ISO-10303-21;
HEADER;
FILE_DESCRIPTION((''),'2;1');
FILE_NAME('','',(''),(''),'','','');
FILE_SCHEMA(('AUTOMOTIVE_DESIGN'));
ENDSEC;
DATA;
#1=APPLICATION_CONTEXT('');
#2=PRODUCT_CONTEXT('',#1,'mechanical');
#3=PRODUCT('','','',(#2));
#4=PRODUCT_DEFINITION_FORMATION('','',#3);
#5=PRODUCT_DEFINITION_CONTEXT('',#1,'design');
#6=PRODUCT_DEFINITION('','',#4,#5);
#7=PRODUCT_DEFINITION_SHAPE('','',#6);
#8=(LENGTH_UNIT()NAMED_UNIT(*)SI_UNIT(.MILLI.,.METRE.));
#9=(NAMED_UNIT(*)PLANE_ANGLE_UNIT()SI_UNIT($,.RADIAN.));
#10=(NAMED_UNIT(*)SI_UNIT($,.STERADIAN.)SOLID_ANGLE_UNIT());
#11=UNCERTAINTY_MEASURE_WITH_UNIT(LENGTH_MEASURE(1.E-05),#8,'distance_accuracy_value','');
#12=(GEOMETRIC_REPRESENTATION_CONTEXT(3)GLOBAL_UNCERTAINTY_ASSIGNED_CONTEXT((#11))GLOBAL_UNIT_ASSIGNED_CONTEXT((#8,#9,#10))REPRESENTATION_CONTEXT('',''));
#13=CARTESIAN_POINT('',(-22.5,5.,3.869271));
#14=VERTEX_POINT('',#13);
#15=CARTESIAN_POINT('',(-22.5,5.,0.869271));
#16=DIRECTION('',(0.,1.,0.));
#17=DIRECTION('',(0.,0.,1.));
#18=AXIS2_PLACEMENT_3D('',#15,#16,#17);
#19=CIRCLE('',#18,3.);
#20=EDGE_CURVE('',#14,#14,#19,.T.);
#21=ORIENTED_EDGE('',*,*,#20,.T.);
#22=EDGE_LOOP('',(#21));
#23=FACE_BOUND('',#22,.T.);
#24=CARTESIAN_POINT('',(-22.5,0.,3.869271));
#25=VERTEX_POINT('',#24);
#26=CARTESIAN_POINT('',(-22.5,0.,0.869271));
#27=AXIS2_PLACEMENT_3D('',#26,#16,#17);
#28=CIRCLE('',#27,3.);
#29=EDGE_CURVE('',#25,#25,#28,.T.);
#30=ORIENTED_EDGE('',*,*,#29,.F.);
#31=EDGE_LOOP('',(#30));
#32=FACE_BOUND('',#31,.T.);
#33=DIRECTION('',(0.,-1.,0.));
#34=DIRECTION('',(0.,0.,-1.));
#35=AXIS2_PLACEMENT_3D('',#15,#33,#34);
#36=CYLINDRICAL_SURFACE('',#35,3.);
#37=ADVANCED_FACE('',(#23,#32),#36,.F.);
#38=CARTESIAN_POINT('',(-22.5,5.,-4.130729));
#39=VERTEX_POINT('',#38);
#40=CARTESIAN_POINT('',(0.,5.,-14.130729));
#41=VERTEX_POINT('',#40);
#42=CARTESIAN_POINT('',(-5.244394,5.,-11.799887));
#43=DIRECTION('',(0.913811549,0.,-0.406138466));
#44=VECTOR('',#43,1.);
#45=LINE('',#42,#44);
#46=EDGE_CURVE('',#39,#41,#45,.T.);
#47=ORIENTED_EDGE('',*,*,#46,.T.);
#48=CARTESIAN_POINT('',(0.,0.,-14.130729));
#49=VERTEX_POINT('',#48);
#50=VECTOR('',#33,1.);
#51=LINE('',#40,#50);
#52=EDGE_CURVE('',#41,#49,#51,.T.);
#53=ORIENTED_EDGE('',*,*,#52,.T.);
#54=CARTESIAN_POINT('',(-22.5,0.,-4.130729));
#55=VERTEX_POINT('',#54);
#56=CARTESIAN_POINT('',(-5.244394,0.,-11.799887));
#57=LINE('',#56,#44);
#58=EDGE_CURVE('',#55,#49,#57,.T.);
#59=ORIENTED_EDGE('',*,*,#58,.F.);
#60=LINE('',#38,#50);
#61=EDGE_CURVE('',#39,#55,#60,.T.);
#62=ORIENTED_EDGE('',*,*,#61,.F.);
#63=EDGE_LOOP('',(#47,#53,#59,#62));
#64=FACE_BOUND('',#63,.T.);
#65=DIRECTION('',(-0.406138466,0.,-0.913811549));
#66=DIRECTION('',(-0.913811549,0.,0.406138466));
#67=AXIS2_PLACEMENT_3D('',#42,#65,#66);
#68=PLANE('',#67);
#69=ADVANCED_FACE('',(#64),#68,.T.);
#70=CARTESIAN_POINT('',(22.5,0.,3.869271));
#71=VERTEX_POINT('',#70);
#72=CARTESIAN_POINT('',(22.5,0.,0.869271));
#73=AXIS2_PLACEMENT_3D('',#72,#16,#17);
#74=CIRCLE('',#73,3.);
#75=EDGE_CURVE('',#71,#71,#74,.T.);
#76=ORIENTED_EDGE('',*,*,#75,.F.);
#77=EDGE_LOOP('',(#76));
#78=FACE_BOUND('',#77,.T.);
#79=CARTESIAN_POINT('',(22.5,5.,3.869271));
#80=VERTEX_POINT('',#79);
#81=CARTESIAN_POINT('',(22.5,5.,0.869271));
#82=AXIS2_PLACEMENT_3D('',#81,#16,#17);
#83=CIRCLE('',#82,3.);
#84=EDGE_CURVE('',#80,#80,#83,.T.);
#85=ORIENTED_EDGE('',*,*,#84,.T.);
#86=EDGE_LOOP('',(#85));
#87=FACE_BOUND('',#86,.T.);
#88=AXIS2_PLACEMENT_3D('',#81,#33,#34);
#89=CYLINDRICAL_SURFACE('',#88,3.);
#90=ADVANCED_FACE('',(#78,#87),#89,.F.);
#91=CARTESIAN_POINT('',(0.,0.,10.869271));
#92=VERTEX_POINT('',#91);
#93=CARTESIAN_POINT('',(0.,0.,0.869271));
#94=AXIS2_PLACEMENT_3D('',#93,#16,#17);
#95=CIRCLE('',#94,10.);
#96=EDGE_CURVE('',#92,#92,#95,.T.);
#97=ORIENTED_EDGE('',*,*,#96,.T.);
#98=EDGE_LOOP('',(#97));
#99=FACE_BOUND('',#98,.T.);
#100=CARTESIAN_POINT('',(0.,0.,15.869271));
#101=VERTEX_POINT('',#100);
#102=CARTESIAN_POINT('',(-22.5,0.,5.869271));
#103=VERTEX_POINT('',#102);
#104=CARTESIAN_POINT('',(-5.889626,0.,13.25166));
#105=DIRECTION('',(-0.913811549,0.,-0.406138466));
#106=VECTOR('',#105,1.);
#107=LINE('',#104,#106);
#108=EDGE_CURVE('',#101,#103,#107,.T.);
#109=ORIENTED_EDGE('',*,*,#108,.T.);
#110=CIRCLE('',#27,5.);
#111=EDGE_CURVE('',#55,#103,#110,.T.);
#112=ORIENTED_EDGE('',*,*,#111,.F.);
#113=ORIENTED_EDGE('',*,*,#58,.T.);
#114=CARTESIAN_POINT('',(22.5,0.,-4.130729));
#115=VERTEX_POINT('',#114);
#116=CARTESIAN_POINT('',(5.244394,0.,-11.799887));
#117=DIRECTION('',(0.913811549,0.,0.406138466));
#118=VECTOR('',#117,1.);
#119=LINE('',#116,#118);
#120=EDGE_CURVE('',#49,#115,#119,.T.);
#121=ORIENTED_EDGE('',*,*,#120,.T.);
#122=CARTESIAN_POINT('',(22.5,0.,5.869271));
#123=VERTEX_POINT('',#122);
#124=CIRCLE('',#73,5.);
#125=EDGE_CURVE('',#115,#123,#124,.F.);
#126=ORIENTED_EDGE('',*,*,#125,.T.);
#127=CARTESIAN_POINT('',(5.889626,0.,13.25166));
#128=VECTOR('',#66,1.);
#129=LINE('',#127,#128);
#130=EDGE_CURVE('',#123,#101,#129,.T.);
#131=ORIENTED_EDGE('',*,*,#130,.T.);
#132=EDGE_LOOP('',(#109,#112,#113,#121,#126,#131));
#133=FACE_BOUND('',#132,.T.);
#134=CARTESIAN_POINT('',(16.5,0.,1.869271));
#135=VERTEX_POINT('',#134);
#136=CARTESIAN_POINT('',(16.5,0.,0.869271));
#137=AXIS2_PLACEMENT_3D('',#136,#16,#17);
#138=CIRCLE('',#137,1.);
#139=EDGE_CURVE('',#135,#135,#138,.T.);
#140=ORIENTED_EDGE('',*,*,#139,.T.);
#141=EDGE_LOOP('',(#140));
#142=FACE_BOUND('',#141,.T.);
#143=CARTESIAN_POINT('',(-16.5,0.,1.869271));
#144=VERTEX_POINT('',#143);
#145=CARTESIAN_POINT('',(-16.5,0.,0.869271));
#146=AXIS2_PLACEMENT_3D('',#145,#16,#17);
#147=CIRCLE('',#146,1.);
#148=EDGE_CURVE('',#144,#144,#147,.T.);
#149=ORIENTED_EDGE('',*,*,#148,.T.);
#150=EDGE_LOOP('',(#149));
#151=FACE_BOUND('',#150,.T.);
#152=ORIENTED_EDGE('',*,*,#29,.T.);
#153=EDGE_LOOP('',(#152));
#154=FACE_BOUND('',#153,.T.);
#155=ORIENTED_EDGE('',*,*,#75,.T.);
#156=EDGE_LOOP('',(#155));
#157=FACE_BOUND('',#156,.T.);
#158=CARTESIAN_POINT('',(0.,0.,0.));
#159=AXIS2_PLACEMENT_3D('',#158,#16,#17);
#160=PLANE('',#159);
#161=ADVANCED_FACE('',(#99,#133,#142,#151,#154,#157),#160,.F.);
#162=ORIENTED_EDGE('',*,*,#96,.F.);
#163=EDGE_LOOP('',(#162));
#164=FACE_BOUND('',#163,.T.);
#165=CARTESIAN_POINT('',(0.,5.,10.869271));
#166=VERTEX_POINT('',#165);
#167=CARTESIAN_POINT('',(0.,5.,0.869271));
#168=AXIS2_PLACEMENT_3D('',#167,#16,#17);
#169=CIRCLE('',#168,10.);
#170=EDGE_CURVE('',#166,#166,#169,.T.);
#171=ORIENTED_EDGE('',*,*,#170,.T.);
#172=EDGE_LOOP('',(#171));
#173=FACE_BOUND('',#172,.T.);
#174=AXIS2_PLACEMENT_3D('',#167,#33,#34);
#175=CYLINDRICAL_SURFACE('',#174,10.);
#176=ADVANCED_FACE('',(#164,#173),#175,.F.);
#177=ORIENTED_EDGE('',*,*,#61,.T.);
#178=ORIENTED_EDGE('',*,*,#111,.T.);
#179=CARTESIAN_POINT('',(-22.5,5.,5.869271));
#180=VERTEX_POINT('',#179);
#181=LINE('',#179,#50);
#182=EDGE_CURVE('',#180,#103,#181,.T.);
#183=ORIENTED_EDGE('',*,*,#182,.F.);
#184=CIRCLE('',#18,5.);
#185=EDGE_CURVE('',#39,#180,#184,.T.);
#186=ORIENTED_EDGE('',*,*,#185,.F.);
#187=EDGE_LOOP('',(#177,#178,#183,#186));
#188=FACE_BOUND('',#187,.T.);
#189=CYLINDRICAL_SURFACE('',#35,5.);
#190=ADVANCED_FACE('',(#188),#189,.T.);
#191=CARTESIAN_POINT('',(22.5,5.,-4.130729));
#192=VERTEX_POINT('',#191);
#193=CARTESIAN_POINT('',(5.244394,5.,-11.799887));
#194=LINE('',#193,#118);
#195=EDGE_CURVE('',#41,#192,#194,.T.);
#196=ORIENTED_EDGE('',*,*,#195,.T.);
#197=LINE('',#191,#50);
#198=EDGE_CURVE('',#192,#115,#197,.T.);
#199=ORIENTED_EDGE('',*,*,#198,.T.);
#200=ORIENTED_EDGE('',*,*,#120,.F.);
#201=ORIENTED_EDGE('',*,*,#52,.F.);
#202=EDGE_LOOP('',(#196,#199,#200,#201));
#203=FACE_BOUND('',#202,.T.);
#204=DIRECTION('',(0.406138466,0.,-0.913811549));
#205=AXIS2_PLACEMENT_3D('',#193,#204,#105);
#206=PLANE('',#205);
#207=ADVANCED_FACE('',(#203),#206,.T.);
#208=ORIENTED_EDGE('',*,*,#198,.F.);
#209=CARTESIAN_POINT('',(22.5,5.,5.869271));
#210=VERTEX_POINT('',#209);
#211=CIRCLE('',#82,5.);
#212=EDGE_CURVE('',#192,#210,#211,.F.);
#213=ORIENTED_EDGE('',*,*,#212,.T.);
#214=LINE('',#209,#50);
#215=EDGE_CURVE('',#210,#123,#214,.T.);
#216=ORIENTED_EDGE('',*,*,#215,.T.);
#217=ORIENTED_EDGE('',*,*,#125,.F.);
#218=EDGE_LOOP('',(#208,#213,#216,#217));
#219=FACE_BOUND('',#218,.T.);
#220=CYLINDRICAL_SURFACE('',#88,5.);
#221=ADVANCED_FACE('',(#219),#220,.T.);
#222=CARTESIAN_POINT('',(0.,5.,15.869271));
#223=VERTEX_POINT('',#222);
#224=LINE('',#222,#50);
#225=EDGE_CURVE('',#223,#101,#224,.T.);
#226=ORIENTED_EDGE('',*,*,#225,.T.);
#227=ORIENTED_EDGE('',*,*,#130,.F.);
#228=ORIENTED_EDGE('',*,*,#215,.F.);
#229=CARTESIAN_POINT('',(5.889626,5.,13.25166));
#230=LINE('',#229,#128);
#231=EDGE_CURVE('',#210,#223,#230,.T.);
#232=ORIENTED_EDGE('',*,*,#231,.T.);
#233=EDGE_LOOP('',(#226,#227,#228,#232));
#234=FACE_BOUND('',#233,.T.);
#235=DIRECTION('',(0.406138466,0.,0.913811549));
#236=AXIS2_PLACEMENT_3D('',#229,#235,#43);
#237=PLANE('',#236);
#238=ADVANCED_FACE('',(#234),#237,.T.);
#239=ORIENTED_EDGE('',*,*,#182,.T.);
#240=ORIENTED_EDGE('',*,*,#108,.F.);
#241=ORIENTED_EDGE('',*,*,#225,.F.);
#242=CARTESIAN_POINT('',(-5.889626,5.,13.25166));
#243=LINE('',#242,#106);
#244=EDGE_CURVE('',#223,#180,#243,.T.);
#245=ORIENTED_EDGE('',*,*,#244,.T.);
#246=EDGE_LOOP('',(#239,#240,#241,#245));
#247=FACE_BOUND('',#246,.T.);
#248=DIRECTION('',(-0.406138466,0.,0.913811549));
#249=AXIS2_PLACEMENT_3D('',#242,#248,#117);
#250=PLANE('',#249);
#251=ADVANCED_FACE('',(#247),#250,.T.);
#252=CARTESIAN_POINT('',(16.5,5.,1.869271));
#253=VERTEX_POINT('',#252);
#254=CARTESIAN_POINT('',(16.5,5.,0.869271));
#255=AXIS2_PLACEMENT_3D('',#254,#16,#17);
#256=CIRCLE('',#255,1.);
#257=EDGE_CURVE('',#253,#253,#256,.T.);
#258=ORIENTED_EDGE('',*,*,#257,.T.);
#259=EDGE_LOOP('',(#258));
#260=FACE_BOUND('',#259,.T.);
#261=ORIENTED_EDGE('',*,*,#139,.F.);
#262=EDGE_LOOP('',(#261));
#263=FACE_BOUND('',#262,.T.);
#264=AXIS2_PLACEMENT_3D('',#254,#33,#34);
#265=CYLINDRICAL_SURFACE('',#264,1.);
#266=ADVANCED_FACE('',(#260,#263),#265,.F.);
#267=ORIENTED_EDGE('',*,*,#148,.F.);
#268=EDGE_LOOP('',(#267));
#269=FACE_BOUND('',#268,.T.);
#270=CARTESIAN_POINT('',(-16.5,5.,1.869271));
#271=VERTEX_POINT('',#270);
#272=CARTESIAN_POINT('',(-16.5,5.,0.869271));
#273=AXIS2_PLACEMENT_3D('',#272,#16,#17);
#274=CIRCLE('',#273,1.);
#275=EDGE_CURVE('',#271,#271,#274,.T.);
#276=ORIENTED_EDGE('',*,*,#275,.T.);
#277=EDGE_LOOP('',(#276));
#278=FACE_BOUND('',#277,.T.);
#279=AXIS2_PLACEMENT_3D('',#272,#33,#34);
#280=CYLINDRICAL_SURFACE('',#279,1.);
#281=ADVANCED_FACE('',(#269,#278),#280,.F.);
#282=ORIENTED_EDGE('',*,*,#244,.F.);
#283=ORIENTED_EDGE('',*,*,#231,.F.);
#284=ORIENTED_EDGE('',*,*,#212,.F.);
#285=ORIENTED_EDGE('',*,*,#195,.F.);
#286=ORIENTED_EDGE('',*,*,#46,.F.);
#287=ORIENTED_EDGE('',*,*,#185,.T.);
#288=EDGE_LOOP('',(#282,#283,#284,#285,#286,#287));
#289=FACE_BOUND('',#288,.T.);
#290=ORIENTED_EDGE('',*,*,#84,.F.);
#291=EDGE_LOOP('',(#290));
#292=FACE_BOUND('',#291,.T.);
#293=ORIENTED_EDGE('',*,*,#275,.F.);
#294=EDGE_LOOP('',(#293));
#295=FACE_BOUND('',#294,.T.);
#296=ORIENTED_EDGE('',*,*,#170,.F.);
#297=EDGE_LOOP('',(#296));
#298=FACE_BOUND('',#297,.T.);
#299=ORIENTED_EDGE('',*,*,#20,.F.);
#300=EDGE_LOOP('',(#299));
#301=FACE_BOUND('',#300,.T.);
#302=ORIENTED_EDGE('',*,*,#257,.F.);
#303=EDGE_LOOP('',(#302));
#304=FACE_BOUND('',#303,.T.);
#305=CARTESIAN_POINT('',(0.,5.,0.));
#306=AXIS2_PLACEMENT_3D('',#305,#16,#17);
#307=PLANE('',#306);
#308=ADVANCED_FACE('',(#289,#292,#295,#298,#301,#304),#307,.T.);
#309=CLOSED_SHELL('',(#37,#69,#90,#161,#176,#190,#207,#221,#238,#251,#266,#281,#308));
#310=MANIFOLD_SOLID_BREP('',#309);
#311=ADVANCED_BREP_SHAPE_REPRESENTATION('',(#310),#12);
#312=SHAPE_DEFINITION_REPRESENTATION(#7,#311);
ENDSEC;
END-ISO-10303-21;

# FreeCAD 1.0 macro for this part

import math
import FreeCAD as App
import Part
import Sketcher
Q = App.Units.Quantity

doc = App.newDocument("Part")
body = doc.addObject("PartDesign::Body", "Body")

sketch1 = body.newObject("Sketcher::SketchObject", "Sketch")
sketch1.AttachmentSupport = (doc.getObject("XZ_Plane"), [""])
sketch1.MapMode = "FlatFace"
sketch1.addGeometry([
    Part.LineSegment(App.Vector(0, -14.1, 0), App.Vector(-22.5, -4.1, 0)),
    Part.ArcOfCircle(Part.Circle(App.Vector(-22.5, 0.9, 0), App.Vector(0, 0, 1), 5), math.radians(90), math.radians(270)),
    Part.LineSegment(App.Vector(-22.5, 5.9, 0), App.Vector(0, 15.9, 0)),
    Part.LineSegment(App.Vector(0, 15.9, 0), App.Vector(22.5, 5.9, 0)),
    Part.ArcOfCircle(Part.Circle(App.Vector(22.5, 0.9, 0), App.Vector(0, 0, 1), 5), math.radians(-90), math.radians(90)),
    Part.LineSegment(App.Vector(22.5, -4.1, 0), App.Vector(0, -14.1, 0)),
    Part.Circle(App.Vector(22.5, 0.9, 0), App.Vector(0, 0, 1), 3),
    Part.Circle(App.Vector(16.5, 0.9, 0), App.Vector(0, 0, 1), 1),
    Part.Circle(App.Vector(0, 0.9, 0), App.Vector(0, 0, 1), 10),
    Part.Circle(App.Vector(-16.5, 0.9, 0), App.Vector(0, 0, 1), 1),
    Part.Circle(App.Vector(-22.5, 0.9, 0), App.Vector(0, 0, 1), 3),
], False)
sketch1.addConstraint([
    Sketcher.Constraint("Coincident", 0, 2, 1, 2),
    Sketcher.Constraint("Coincident", 1, 1, 2, 1),
    Sketcher.Constraint("Coincident", 2, 2, 3, 1),
    Sketcher.Constraint("Coincident", 3, 2, 4, 2),
    Sketcher.Constraint("Coincident", 4, 1, 5, 1),
    Sketcher.Constraint("Coincident", 5, 2, 0, 1),
    Sketcher.Constraint("Coincident", 6, 3, 4, 3),
    Sketcher.Constraint("Coincident", 10, 3, 1, 3),
    Sketcher.Constraint("Equal", 1, 4),
    Sketcher.Constraint("Equal", 7, 9),
    Sketcher.Constraint("Equal", 6, 10),
    Sketcher.Constraint("Symmetric", 1, 3, 4, 3, -2),
    Sketcher.Constraint("Symmetric", 7, 3, 9, 3, -2),
    Sketcher.Constraint("PointOnObject", 8, 3, -2),
    Sketcher.Constraint("PointOnObject", 2, 2, -2),
    Sketcher.Constraint("PointOnObject", 5, 2, -2),
    Sketcher.Constraint("Parallel", 0, 3),
    Sketcher.Constraint("Parallel", 2, 5),
    Sketcher.Constraint("Horizontal", 6, 3, 7, 3),
    Sketcher.Constraint("Horizontal", 7, 3, 8, 3),
    Sketcher.Constraint("Vertical", 10, 3, 0, 2),
    Sketcher.Constraint("Vertical", 0, 2, 1, 1),
    Sketcher.Constraint("Vertical", 6, 3, 3, 2),
    Sketcher.Constraint("Diameter", 6, Q("6 mm")),
    Sketcher.Constraint("Diameter", 7, Q("2 mm")),
    Sketcher.Constraint("Diameter", 8, Q("20 mm")),
    Sketcher.Constraint("Radius", 1, Q("5 mm")),
    Sketcher.Constraint("DistanceX", 1, 3, 4, 3, Q("45 mm")),
    Sketcher.Constraint("DistanceX", 7, 3, 4, 3, Q("6 mm")),
    Sketcher.Constraint("DistanceY", 8, 3, 2, 2, Q("15 mm")),
    Sketcher.Constraint("DistanceY", -1, 1, 1, 3, Q("0.869271 mm")),
])
pad1 = body.newObject("PartDesign::Pad", "Pad")
pad1.Profile = sketch1
pad1.Length = 5
pad1.Reversed = True

doc.recompute()
